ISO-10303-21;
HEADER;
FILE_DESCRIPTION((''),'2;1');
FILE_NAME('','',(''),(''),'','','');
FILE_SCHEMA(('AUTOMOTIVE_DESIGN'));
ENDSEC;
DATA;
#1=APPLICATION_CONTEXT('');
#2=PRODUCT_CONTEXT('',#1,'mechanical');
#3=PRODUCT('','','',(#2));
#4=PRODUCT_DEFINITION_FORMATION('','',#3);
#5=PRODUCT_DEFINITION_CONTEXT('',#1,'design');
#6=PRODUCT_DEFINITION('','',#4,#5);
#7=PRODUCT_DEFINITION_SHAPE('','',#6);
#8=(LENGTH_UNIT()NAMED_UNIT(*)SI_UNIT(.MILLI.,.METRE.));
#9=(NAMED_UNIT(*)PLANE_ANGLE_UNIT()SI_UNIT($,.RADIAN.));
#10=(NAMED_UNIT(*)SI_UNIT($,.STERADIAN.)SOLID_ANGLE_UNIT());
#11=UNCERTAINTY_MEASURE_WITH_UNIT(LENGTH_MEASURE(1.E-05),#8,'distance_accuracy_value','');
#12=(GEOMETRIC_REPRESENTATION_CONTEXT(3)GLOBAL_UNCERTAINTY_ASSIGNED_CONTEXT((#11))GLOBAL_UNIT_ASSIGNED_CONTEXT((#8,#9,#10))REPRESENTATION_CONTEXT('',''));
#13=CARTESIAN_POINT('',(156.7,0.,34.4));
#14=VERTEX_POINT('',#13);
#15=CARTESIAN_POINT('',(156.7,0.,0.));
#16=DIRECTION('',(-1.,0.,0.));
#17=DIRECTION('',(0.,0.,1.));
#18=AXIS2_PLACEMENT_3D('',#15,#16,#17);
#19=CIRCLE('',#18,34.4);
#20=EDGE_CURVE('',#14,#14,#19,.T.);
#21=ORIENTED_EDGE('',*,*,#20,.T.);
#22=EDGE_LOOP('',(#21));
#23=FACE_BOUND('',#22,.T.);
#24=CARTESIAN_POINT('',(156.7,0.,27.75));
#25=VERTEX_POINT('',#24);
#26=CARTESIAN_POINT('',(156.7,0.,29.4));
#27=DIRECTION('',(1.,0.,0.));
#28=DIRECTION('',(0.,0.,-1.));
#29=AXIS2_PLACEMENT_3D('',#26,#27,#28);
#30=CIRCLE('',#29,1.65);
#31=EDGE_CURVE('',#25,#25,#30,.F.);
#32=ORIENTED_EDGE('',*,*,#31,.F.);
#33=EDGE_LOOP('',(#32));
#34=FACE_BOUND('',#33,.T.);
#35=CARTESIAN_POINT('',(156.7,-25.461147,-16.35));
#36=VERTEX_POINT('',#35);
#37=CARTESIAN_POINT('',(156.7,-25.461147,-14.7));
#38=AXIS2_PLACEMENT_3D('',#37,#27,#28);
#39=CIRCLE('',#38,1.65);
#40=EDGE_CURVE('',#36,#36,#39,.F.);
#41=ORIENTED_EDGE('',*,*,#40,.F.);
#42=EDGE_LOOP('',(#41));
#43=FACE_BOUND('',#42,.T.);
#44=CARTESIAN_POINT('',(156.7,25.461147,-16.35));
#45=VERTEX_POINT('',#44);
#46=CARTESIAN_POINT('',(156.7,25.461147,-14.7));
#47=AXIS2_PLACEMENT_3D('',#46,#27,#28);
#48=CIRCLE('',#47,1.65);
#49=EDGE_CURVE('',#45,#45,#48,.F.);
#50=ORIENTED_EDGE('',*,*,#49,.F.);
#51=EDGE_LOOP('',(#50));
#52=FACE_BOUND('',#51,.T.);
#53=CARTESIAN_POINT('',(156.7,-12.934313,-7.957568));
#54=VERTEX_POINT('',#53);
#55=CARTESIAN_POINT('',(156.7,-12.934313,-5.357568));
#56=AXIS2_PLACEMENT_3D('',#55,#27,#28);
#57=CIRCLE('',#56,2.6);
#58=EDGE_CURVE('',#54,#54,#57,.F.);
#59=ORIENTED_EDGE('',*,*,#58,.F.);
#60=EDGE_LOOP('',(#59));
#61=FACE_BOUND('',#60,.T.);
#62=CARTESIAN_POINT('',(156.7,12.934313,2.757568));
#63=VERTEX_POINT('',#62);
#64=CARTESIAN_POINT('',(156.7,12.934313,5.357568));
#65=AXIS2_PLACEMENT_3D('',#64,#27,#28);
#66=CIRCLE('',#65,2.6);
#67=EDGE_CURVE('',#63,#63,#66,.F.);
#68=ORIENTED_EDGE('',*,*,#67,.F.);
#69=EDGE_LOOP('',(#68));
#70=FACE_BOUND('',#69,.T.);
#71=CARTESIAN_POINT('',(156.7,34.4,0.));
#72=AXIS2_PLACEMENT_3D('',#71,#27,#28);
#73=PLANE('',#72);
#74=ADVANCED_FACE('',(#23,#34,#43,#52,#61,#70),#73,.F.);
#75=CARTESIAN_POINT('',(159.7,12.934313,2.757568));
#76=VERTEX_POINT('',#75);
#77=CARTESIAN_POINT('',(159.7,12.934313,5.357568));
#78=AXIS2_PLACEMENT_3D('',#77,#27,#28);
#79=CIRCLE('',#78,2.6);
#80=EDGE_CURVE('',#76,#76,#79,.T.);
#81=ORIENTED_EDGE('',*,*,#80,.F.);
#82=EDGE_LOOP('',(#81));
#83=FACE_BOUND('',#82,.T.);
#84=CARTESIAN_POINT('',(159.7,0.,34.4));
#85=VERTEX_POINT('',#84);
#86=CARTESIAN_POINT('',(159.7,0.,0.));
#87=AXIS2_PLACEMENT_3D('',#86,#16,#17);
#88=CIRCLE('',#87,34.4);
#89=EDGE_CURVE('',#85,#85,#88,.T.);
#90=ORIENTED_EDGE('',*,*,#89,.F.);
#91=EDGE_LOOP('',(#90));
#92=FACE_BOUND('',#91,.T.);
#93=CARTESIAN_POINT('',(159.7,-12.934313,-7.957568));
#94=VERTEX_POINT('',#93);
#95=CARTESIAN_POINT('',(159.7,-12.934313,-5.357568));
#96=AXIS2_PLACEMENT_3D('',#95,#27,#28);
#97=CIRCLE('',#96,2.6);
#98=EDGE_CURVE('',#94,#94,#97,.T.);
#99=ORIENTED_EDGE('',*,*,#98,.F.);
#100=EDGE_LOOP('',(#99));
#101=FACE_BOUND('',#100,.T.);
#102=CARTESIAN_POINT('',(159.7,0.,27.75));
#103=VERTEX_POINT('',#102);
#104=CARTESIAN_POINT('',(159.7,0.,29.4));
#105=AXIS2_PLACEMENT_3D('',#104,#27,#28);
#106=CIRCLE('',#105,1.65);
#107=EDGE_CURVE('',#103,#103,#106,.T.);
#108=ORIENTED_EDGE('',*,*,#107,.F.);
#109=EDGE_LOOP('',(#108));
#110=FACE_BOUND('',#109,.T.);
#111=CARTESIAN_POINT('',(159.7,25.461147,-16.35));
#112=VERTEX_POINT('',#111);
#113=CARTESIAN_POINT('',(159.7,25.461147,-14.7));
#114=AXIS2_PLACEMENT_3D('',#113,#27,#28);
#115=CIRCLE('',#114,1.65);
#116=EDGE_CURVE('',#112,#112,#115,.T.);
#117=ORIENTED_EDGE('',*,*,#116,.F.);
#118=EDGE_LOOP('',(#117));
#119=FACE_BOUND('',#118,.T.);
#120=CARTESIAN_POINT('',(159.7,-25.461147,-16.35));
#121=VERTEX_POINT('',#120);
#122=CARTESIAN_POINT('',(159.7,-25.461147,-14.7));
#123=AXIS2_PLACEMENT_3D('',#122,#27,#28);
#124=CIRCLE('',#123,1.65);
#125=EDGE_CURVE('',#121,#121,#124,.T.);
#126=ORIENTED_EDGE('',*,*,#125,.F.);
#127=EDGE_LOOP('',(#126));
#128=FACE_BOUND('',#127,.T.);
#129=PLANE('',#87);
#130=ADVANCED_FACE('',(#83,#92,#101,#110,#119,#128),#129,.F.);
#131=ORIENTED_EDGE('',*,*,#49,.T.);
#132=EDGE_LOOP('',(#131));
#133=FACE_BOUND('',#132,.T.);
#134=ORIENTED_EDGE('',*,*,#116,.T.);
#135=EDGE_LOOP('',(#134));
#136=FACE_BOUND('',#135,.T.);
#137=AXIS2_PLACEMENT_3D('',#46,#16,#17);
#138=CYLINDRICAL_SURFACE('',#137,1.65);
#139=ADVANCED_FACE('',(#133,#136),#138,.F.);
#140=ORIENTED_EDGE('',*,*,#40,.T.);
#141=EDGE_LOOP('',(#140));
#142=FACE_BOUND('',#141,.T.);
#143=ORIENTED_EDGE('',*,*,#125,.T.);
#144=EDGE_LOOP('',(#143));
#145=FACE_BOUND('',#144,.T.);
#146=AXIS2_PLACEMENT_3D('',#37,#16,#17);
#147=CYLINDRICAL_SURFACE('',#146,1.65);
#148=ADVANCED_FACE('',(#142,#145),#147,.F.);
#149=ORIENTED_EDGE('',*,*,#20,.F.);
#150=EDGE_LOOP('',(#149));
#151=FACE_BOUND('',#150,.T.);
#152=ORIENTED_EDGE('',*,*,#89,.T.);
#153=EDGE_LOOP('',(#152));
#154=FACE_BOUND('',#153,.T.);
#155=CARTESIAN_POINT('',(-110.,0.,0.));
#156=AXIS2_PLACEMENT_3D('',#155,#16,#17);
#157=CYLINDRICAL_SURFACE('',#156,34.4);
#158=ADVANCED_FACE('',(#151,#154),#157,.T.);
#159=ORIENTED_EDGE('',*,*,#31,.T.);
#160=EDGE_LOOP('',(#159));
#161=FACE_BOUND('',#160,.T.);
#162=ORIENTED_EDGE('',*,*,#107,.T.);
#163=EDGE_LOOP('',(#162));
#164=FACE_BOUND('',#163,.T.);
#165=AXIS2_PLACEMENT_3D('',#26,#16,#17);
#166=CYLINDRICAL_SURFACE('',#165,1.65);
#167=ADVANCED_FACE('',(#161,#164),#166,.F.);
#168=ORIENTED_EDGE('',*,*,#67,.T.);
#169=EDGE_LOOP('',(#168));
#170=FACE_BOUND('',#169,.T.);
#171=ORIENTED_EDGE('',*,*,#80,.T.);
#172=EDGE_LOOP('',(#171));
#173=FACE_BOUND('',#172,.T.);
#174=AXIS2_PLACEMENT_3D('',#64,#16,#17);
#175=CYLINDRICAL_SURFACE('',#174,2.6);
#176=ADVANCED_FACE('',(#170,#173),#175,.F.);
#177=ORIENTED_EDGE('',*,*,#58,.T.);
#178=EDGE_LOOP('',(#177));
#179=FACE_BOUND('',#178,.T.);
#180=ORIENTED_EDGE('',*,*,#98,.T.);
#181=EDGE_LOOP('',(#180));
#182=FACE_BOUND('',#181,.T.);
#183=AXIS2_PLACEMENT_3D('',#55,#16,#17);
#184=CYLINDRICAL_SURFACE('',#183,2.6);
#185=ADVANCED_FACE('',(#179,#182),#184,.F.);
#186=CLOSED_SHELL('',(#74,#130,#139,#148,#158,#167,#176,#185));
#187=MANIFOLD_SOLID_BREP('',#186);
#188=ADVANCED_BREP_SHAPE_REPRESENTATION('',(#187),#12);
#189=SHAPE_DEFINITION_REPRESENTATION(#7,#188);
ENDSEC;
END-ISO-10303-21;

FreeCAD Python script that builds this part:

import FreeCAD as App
import Part
import Sketcher
from FreeCAD import Vector


def add_polygon(sketch, points):
    """Adds a closed chain of lines whose ends are joined by coincident constraints."""
    first, n = sketch.GeometryCount, len(points)
    for a, b in zip(points, points[1:] + points[:1]):
        sketch.addGeometry(Part.LineSegment(App.Vector(*a, 0), App.Vector(*b, 0)), False)
    for i in range(n):
        sketch.addConstraint(Sketcher.Constraint("Coincident", first + i, 2, first + (i + 1) % n, 1))

doc = App.newDocument("Part")
body = doc.addObject("PartDesign::Body", "Body")

sketch1 = body.newObject("Sketcher::SketchObject", "Sketch")
sketch1.AttachmentSupport = (doc.getObject("XY_Plane"), [""])
sketch1.MapMode = "FlatFace"
add_polygon(sketch1, [(156.7, 34.4), (156.7, 0), (159.7, 0), (159.7, 34.4)])
sketch1.addConstraint([
    Sketcher.Constraint("Vertical", 0),
    Sketcher.Constraint("Horizontal", 1),
    Sketcher.Constraint("Vertical", 2),
    Sketcher.Constraint("Horizontal", 3),
    Sketcher.Constraint("PointOnObject", 0, 2, -1),
    Sketcher.Constraint("DistanceX", 1, 1, 1, 2, 3.0),
    Sketcher.Constraint("DistanceY", 0, 2, 0, 1, 34.4),
    Sketcher.Constraint("DistanceX", -1, 1, 0, 2, 156.7),
])
revolution = body.newObject("PartDesign::Revolution", "Revolution")
revolution.Profile = sketch1
revolution.ReferenceAxis = (sketch1, ["H_Axis"])
revolution.Angle = 360

sketch2 = body.newObject("Sketcher::SketchObject", "Sketch001")
sketch2.AttachmentSupport = (doc.getObject("YZ_Plane"), [""])
sketch2.MapMode = "FlatFace"
sketch2.addGeometry([
    Part.Circle(Vector(12.9, 5.4, 0), Vector(0, 0, 1), 2.6),
    Part.Circle(Vector(-12.9, -5.4, 0), Vector(0, 0, 1), 2.6),
    Part.Circle(Vector(0, 29.4, 0), Vector(0, 0, 1), 1.6),
    Part.Circle(Vector(-25.5, -14.7, 0), Vector(0, 0, 1), 1.6),
    Part.Circle(Vector(25.5, -14.7, 0), Vector(0, 0, 1), 1.6),
], False)
sketch2.addConstraint([
    Sketcher.Constraint("Equal", 0, 1),
    Sketcher.Constraint("Equal", 2, 3),
    Sketcher.Constraint("Equal", 3, 4),
    Sketcher.Constraint("Symmetric", 0, 3, 1, 3, -1, 1),
    Sketcher.Constraint("Symmetric", 3, 3, 4, 3, -2),
    Sketcher.Constraint("PointOnObject", 2, 3, -2),
    Sketcher.Constraint("Diameter", 0, 5.2),
    Sketcher.Constraint("Diameter", 2, 3.3),
    Sketcher.Constraint("DistanceY", -1, 1, 2, 3, 29.4),
    Sketcher.Constraint("DistanceY", 3, 3, -1, 1, 14.7),
    Sketcher.Constraint("DistanceY", -1, 1, 0, 3, 5.357568),
    Sketcher.Constraint("DistanceX", 3, 3, 0, 3, 38.39546),
    Sketcher.Constraint("DistanceX", -1, 1, 0, 3, 12.934313),
])
pocket1 = body.newObject("PartDesign::Pocket", "Pocket")
pocket1.Profile = sketch2
pocket1.Type = "ThroughAll"
pocket1.Midplane = True

doc.recompute()
